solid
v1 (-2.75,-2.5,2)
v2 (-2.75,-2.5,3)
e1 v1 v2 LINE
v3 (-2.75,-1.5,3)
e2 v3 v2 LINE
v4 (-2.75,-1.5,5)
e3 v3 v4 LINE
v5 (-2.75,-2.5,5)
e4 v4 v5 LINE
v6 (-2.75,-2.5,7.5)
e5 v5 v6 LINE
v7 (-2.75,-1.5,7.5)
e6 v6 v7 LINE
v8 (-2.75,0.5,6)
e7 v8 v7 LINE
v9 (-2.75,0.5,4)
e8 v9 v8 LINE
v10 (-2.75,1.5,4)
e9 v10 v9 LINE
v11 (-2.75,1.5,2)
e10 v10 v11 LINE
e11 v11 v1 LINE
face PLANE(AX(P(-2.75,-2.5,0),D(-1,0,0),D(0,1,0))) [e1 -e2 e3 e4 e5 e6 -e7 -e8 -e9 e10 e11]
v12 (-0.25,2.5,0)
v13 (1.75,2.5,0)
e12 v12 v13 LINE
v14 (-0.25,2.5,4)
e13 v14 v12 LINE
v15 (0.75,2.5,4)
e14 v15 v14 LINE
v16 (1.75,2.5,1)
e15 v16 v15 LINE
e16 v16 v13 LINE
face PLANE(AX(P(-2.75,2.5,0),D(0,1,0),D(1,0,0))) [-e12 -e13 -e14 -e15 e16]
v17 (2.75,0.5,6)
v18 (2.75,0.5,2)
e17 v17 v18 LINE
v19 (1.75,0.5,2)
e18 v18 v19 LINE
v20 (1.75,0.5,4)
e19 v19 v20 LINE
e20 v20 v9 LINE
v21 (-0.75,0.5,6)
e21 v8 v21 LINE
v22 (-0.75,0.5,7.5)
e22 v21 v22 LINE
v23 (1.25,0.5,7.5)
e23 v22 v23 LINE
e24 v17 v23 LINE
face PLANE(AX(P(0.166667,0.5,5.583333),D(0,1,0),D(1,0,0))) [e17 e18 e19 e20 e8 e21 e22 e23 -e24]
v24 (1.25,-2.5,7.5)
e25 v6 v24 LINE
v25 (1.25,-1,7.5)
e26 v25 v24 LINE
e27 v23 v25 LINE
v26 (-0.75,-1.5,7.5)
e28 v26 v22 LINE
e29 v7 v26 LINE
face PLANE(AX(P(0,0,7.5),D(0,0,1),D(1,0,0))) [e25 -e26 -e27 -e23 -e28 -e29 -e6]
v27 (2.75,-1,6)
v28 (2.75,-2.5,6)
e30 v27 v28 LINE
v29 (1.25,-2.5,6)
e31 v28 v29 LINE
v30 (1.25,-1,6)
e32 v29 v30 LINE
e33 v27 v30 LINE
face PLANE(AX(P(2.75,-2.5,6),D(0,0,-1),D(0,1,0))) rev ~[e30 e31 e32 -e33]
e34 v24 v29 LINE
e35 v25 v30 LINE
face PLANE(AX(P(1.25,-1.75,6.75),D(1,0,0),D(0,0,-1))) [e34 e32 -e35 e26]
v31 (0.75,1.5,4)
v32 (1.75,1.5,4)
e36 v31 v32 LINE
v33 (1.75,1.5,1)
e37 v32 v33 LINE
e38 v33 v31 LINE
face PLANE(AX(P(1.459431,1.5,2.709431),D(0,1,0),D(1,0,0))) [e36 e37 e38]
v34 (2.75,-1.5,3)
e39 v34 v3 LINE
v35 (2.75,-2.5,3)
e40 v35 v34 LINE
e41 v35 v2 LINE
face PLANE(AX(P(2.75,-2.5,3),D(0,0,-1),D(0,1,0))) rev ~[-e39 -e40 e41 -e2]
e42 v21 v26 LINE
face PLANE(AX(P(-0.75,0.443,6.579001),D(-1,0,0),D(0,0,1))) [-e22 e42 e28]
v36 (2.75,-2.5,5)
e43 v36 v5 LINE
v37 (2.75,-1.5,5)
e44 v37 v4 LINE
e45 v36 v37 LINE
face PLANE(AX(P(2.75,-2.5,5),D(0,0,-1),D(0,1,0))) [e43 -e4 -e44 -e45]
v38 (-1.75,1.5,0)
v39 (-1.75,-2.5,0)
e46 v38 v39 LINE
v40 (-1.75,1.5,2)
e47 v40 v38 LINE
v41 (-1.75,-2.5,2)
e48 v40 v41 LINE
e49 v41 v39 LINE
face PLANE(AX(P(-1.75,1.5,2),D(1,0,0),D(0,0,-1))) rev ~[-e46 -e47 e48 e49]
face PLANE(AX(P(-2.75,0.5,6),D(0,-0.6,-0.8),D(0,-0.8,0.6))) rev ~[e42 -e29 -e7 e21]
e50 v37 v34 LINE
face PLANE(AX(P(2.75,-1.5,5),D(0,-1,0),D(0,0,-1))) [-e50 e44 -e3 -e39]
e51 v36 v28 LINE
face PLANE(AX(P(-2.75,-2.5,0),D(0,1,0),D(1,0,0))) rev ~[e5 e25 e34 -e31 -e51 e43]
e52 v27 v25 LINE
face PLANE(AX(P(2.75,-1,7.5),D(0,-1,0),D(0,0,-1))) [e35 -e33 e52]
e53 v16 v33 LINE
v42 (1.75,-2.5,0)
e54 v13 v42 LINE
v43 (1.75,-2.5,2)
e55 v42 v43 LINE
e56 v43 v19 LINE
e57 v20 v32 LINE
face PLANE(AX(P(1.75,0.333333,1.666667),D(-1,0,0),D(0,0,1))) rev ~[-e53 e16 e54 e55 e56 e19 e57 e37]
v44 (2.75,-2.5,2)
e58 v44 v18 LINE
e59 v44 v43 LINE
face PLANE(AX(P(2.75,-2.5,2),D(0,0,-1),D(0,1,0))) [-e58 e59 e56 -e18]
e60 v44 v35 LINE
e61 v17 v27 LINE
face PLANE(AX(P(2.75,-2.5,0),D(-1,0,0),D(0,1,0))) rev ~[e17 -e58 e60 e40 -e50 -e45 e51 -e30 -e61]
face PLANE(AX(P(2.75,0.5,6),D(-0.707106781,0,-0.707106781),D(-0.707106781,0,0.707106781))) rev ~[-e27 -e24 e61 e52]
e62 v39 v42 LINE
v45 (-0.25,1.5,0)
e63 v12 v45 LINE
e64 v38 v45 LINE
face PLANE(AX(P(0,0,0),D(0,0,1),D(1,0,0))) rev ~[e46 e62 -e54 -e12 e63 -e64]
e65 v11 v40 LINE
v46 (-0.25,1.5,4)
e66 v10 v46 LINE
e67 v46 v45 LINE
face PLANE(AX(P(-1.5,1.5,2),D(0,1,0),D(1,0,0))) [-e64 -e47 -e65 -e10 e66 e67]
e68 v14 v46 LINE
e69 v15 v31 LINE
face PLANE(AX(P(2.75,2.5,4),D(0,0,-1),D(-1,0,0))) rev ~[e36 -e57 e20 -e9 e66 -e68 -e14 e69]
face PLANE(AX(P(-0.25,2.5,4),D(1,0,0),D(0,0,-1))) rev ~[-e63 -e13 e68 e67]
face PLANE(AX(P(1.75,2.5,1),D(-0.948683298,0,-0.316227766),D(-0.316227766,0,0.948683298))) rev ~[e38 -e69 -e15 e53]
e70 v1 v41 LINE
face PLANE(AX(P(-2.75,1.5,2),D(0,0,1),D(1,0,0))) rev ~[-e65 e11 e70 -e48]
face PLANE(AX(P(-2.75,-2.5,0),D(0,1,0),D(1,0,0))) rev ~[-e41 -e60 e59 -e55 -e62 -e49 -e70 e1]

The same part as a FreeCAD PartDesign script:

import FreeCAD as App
import Part
import Sketcher

doc = App.newDocument("Part")
body = doc.addObject("PartDesign::Body", "Body")

# Sketch on XY plane
sketch1 = body.newObject("Sketcher::SketchObject", "Sketch")
sketch1.AttachmentSupport = (doc.getObject("XY_Plane"), [""])
sketch1.MapMode = "FlatFace"
sketch1.addGeometry([
    Part.LineSegment(App.Vector(-2.75, 2.5, 0), App.Vector(-2.75, -2.5, 0)),
    Part.LineSegment(App.Vector(-2.75, -2.5, 0), App.Vector(2.75, -2.5, 0)),
    Part.LineSegment(App.Vector(2.75, -2.5, 0), App.Vector(2.75, 2.5, 0)),
    Part.LineSegment(App.Vector(2.75, 2.5, 0), App.Vector(-2.75, 2.5, 0)),
], False)
sketch1.addConstraint([
    Sketcher.Constraint("Coincident", 0, 2, 1, 1),
    Sketcher.Constraint("Coincident", 1, 2, 2, 1),
    Sketcher.Constraint("Coincident", 2, 2, 3, 1),
    Sketcher.Constraint("Coincident", 3, 2, 0, 1),
    Sketcher.Constraint("Vertical", 0),
    Sketcher.Constraint("Horizontal", 1),
    Sketcher.Constraint("Vertical", 2),
    Sketcher.Constraint("Horizontal", 3),
    Sketcher.Constraint("Symmetric", 0, 2, 2, 2, -1, 1),
    Sketcher.Constraint("DistanceY", 0, 2, 0, 1, 5.0),
    Sketcher.Constraint("DistanceX", 1, 1, 1, 2, 5.5),
])
pad1 = body.newObject("PartDesign::Pad", "Pad")
pad1.Profile = sketch1
pad1.Length = 7.5

# Sketch on YZ plane
sketch2 = body.newObject("Sketcher::SketchObject", "Sketch001")
sketch2.AttachmentSupport = (doc.getObject("YZ_Plane"), [""])
sketch2.MapMode = "FlatFace"
sketch2.AttachmentOffset = App.Placement(App.Vector(0, 0, -2.75), App.Rotation())
sketch2.addGeometry([
    Part.LineSegment(App.Vector(2.5, 6, 0), App.Vector(-1.5, 7.5, 0)),
    Part.LineSegment(App.Vector(-1.5, 7.5, 0), App.Vector(2.5, 7.5, 0)),
    Part.LineSegment(App.Vector(2.5, 7.5, 0), App.Vector(2.5, 6, 0)),
], False)
sketch2.addConstraint([
    Sketcher.Constraint("Coincident", 0, 2, 1, 1),
    Sketcher.Constraint("Coincident", 1, 2, 2, 1),
    Sketcher.Constraint("Coincident", 2, 2, 0, 1),
    Sketcher.Constraint("Horizontal", 1),
    Sketcher.Constraint("Vertical", 2),
    Sketcher.Constraint("DistanceX", 1, 1, 1, 2, 4.0),
    Sketcher.Constraint("DistanceY", 2, 2, 2, 1, 1.5),
    Sketcher.Constraint("DistanceY", -1, 1, 2, 2, 6.0),
    Sketcher.Constraint("DistanceX", 0, 2, -1, 1, 1.5),
])
pocket1 = body.newObject("PartDesign::Pocket", "Pocket")
pocket1.Profile = sketch2
pocket1.Length = 2
pocket1.Reversed = True

# Sketch on YZ plane
sketch3 = body.newObject("Sketcher::SketchObject", "Sketch002")
sketch3.AttachmentSupport = (doc.getObject("YZ_Plane"), [""])
sketch3.MapMode = "FlatFace"
sketch3.AttachmentOffset = App.Placement(App.Vector(0, 0, 2.75), App.Rotation())
sketch3.addGeometry([
    Part.LineSegment(App.Vector(-2.5, 2, 0), App.Vector(-2.5, 0, 0)),  # 0
    Part.LineSegment(App.Vector(-2.5, 0, 0), App.Vector(2.5, 0, 0)),  # 1
    Part.LineSegment(App.Vector(2.5, 0, 0), App.Vector(2.5, 4, 0)),  # 2
    Part.LineSegment(App.Vector(2.5, 4, 0), App.Vector(0.5, 4, 0)),  # 3
    Part.LineSegment(App.Vector(0.5, 4, 0), App.Vector(0.5, 2, 0)),  # 4
    Part.LineSegment(App.Vector(0.5, 2, 0), App.Vector(-2.5, 2, 0)),  # 5
], False)
sketch3.addConstraint([
    Sketcher.Constraint("Coincident", 0, 2, 1, 1),
    Sketcher.Constraint("Coincident", 1, 2, 2, 1),
    Sketcher.Constraint("Coincident", 2, 2, 3, 1),
    Sketcher.Constraint("Coincident", 3, 2, 4, 1),
    Sketcher.Constraint("Coincident", 4, 2, 5, 1),
    Sketcher.Constraint("Coincident", 5, 2, 0, 1),
    Sketcher.Constraint("Vertical", 0),
    Sketcher.Constraint("Horizontal", 1),
    Sketcher.Constraint("Vertical", 2),
    Sketcher.Constraint("Horizontal", 3),
    Sketcher.Constraint("Vertical", 4),
    Sketcher.Constraint("Horizontal", 5),
    Sketcher.Constraint("Symmetric", 0, 2, 1, 2, -1, 1),
    Sketcher.Constraint("Equal", 3, 0),
    Sketcher.Constraint("Equal", 0, 4),
    Sketcher.Constraint("DistanceX", 1, 1, 1, 2, 5.0),
    Sketcher.Constraint("DistanceX", 3, 2, 3, 1, 2.0),
])
pocket2 = body.newObject("PartDesign::Pocket", "Pocket001")
pocket2.Profile = sketch3
pocket2.Length = 1

# Sketch on XZ plane
sketch4 = body.newObject("Sketcher::SketchObject", "Sketch003")
sketch4.AttachmentSupport = (doc.getObject("XZ_Plane"), [""])
sketch4.MapMode = "FlatFace"
sketch4.AttachmentOffset = App.Placement(App.Vector(0, 0, -2.5), App.Rotation())
sketch4.addGeometry([
    Part.LineSegment(App.Vector(2.75, 7.5, 0), App.Vector(2.75, 4, 0)),  # 0
    Part.LineSegment(App.Vector(2.75, 4, 0), App.Vector(-2.75, 4, 0)),  # 1
    Part.LineSegment(App.Vector(-2.75, 4, 0), App.Vector(-2.75, 6, 0)),  # 2
    Part.LineSegment(App.Vector(-2.75, 6, 0), App.Vector(-0.75, 6, 0)),  # 3
    Part.LineSegment(App.Vector(-0.75, 6, 0), App.Vector(-0.75, 7.5, 0)),  # 4
    Part.LineSegment(App.Vector(-0.75, 7.5, 0), App.Vector(2.75, 7.5, 0)),  # 5
], False)
sketch4.addConstraint([
    Sketcher.Constraint("Coincident", 0, 2, 1, 1),
    Sketcher.Constraint("Coincident", 1, 2, 2, 1),
    Sketcher.Constraint("Coincident", 2, 2, 3, 1),
    Sketcher.Constraint("Coincident", 3, 2, 4, 1),
    Sketcher.Constraint("Coincident", 4, 2, 5, 1),
    Sketcher.Constraint("Coincident", 5, 2, 0, 1),
    Sketcher.Constraint("Vertical", 0),
    Sketcher.Constraint("Horizontal", 1),
    Sketcher.Constraint("Vertical", 2),
    Sketcher.Constraint("Horizontal", 3),
    Sketcher.Constraint("Vertical", 4),
    Sketcher.Constraint("Horizontal", 5),
    Sketcher.Constraint("Equal", 5, 0),
    Sketcher.Constraint("Equal", 3, 2),
    Sketcher.Constraint("DistanceX", 3, 1, 3, 2, 2.0),
    Sketcher.Constraint("DistanceX", 1, 2, 1, 1, 5.5),
    Sketcher.Constraint("DistanceY", -1, 1, 0, 2, 4.0),
    Sketcher.Constraint("DistanceX", -1, 1, 0, 2, 2.75),
])
pocket3 = body.newObject("PartDesign::Pocket", "Pocket002")
pocket3.Profile = sketch4
pocket3.Length = 2
pocket3.Reversed = True

# Sketch on YZ plane
sketch5 = body.newObject("Sketcher::SketchObject", "Sketch004")
sketch5.AttachmentSupport = (doc.getObject("YZ_Plane"), [""])
sketch5.MapMode = "FlatFace"
sketch5.AttachmentOffset = App.Placement(App.Vector(0, 0, -2.75), App.Rotation())
sketch5.addGeometry([
    Part.LineSegment(App.Vector(2.5, 6, 0), App.Vector(0.5, 6, 0)),
    Part.LineSegment(App.Vector(0.5, 6, 0), App.Vector(-1.5, 7.5, 0)),
    Part.LineSegment(App.Vector(-1.5, 7.5, 0), App.Vector(2.5, 6, 0)),
], False)
sketch5.addConstraint([
    Sketcher.Constraint("Coincident", 0, 2, 1, 1),
    Sketcher.Constraint("Coincident", 1, 2, 2, 1),
    Sketcher.Constraint("Coincident", 2, 2, 0, 1),
    Sketcher.Constraint("Horizontal", 0),
    Sketcher.Constraint("DistanceX", 0, 2, 0, 1, 2.0),
    Sketcher.Constraint("DistanceY", -1, 1, 0, 2, 6.0),
    Sketcher.Constraint("DistanceX", 1, 2, 0, 2, 2.0),
    Sketcher.Constraint("Distance", 1, 2.5),
    Sketcher.Constraint("DistanceX", -1, 1, 0, 2, 0.5),
])
pocket4 = body.newObject("PartDesign::Pocket", "Pocket003")
pocket4.Profile = sketch5
pocket4.Length = 2
pocket4.Reversed = True

# Sketch on XZ plane
sketch6 = body.newObject("Sketcher::SketchObject", "Sketch005")
sketch6.AttachmentSupport = (doc.getObject("XZ_Plane"), [""])
sketch6.MapMode = "FlatFace"
sketch6.AttachmentOffset = App.Placement(App.Vector(0, 0, -2.5), App.Rotation())
sketch6.addGeometry([
    Part.LineSegment(App.Vector(1.75, 4, 0), App.Vector(1.75, 1, 0)),  # 0
    Part.LineSegment(App.Vector(1.75, 1, 0), App.Vector(0.75, 4, 0)),  # 1
    Part.LineSegment(App.Vector(0.75, 4, 0), App.Vector(1.75, 4, 0)),  # 2
    Part.LineSegment(App.Vector(-2.75, 0, 0), App.Vector(-2.75, 4, 0)),  # 3
    Part.LineSegment(App.Vector(-2.75, 4, 0), App.Vector(-0.25, 4, 0)),  # 4
    Part.LineSegment(App.Vector(-0.25, 4, 0), App.Vector(-0.25, 0, 0)),  # 5
    Part.LineSegment(App.Vector(-0.25, 0, 0), App.Vector(-2.75, 0, 0)),  # 6
], False)
sketch6.addConstraint([
    Sketcher.Constraint("Coincident", 0, 2, 1, 1),
    Sketcher.Constraint("Coincident", 1, 2, 2, 1),
    Sketcher.Constraint("Coincident", 2, 2, 0, 1),
    Sketcher.Constraint("Coincident", 3, 2, 4, 1),
    Sketcher.Constraint("Coincident", 4, 2, 5, 1),
    Sketcher.Constraint("Coincident", 5, 2, 6, 1),
    Sketcher.Constraint("Coincident", 6, 2, 3, 1),
    Sketcher.Constraint("Vertical", 0),
    Sketcher.Constraint("Horizontal", 2),
    Sketcher.Constraint("Vertical", 3),
    Sketcher.Constraint("Horizontal", 4),
    Sketcher.Constraint("Vertical", 5),
    Sketcher.Constraint("Horizontal", 6),
    Sketcher.Constraint("PointOnObject", 5, 2, -1),
    Sketcher.Constraint("Horizontal", 2, 2, 3, 2),
    Sketcher.Constraint("DistanceX", 2, 1, 2, 2, 1.0),
    Sketcher.Constraint("DistanceY", 0, 2, 0, 1, 3.0),
    Sketcher.Constraint("DistanceY", 3, 1, 3, 2, 4.0),
    Sketcher.Constraint("DistanceX", 4, 1, 4, 2, 2.5),
    Sketcher.Constraint("DistanceX", 4, 2, 1, 2, 1.0),
    Sketcher.Constraint("DistanceX", -1, 1, 0, 2, 1.75),
])
pocket5 = body.newObject("PartDesign::Pocket", "Pocket004")
pocket5.Profile = sketch6
pocket5.Length = 1
pocket5.Reversed = True

# Sketch on XZ plane
sketch7 = body.newObject("Sketcher::SketchObject", "Sketch006")
sketch7.AttachmentSupport = (doc.getObject("XZ_Plane"), [""])
sketch7.MapMode = "FlatFace"
sketch7.AttachmentOffset = App.Placement(App.Vector(0, 0, -1.5), App.Rotation())
sketch7.addGeometry([
    Part.LineSegment(App.Vector(-2.75, 0, 0), App.Vector(-2.75, 2, 0)),
    Part.LineSegment(App.Vector(-2.75, 2, 0), App.Vector(-1.75, 2, 0)),
    Part.LineSegment(App.Vector(-1.75, 2, 0), App.Vector(-1.75, 0, 0)),
    Part.LineSegment(App.Vector(-1.75, 0, 0), App.Vector(-2.75, 0, 0)),
], False)
sketch7.addConstraint([
    Sketcher.Constraint("Coincident", 0, 2, 1, 1),
    Sketcher.Constraint("Coincident", 1, 2, 2, 1),
    Sketcher.Constraint("Coincident", 2, 2, 3, 1),
    Sketcher.Constraint("Coincident", 3, 2, 0, 1),
    Sketcher.Constraint("Vertical", 0),
    Sketcher.Constraint("Horizontal", 1),
    Sketcher.Constraint("Vertical", 2),
    Sketcher.Constraint("Horizontal", 3),
    Sketcher.Constraint("PointOnObject", 2, 2, -1),
    Sketcher.Constraint("DistanceX", 1, 1, 1, 2, 1.0),
    Sketcher.Constraint("DistanceY", 0, 1, 0, 2, 2.0),
    Sketcher.Constraint("DistanceX", 0, 2, -1, 1, 2.75),
])
pocket6 = body.newObject("PartDesign::Pocket", "Pocket005")
pocket6.Profile = sketch7
pocket6.Type = "ThroughAll"
pocket6.Reversed = True

# Sketch on YZ plane
sketch8 = body.newObject("Sketcher::SketchObject", "Sketch007")
sketch8.AttachmentSupport = (doc.getObject("YZ_Plane"), [""])
sketch8.MapMode = "FlatFace"
sketch8.AttachmentOffset = App.Placement(App.Vector(0, 0, 2.75), App.Rotation())
sketch8.addGeometry([
    Part.LineSegment(App.Vector(-1.5, 5, 0), App.Vector(-2.5, 5, 0)),
    Part.LineSegment(App.Vector(-2.5, 5, 0), App.Vector(-2.5, 3, 0)),
    Part.LineSegment(App.Vector(-2.5, 3, 0), App.Vector(-1.5, 3, 0)),
    Part.LineSegment(App.Vector(-1.5, 3, 0), App.Vector(-1.5, 5, 0)),
], False)
sketch8.addConstraint([
    Sketcher.Constraint("Coincident", 0, 2, 1, 1),
    Sketcher.Constraint("Coincident", 1, 2, 2, 1),
    Sketcher.Constraint("Coincident", 2, 2, 3, 1),
    Sketcher.Constraint("Coincident", 3, 2, 0, 1),
    Sketcher.Constraint("Horizontal", 0),
    Sketcher.Constraint("Vertical", 1),
    Sketcher.Constraint("Horizontal", 2),
    Sketcher.Constraint("Vertical", 3),
    Sketcher.Constraint("DistanceX", 0, 2, 0, 1, 1.0),
    Sketcher.Constraint("DistanceY", 1, 2, 1, 1, 2.0),
    Sketcher.Constraint("DistanceY", -1, 1, 0, 2, 5.0),
    Sketcher.Constraint("DistanceX", 0, 2, -1, 1, 2.5),
])
pocket7 = body.newObject("PartDesign::Pocket", "Pocket006")
pocket7.Profile = sketch8
pocket7.Type = "ThroughAll"

# Sketch on XZ plane
sketch9 = body.newObject("Sketcher::SketchObject", "Sketch008")
sketch9.AttachmentSupport = (doc.getObject("XZ_Plane"), [""])
sketch9.MapMode = "FlatFace"
sketch9.AttachmentOffset = App.Placement(App.Vector(0, 0, -0.5), App.Rotation())
sketch9.addGeometry([
    Part.LineSegment(App.Vector(2.75, 6, 0), App.Vector(1.25, 7.5, 0)),
    Part.LineSegment(App.Vector(1.25, 7.5, 0), App.Vector(2.75, 7.5, 0)),
    Part.LineSegment(App.Vector(2.75, 7.5, 0), App.Vector(2.75, 6, 0)),
], False)
sketch9.addConstraint([
    Sketcher.Constraint("Coincident", 0, 2, 1, 1),
    Sketcher.Constraint("Coincident", 1, 2, 2, 1),
    Sketcher.Constraint("Coincident", 2, 2, 0, 1),
    Sketcher.Constraint("Horizontal", 1),
    Sketcher.Constraint("Vertical", 2),
    Sketcher.Constraint("Equal", 1, 2),
    Sketcher.Constraint("DistanceX", 1, 1, 1, 2, 1.5),
    Sketcher.Constraint("DistanceY", -1, 1, 2, 2, 6.0),
    Sketcher.Constraint("DistanceX", -1, 1, 0, 2, 1.25),
])
pocket8 = body.newObject("PartDesign::Pocket", "Pocket007")
pocket8.Profile = sketch9
pocket8.Type = "ThroughAll"
pocket8.Reversed = True

# Sketch on YZ plane
sketch10 = body.newObject("Sketcher::SketchObject", "Sketch009")
sketch10.AttachmentSupport = (doc.getObject("YZ_Plane"), [""])
sketch10.MapMode = "FlatFace"
sketch10.AttachmentOffset = App.Placement(App.Vector(0, 0, 2.75), App.Rotation())
sketch10.addGeometry([
    Part.LineSegment(App.Vector(-1, 7.5, 0), App.Vector(-2.5, 7.5, 0)),
    Part.LineSegment(App.Vector(-2.5, 7.5, 0), App.Vector(-2.5, 6, 0)),
    Part.LineSegment(App.Vector(-2.5, 6, 0), App.Vector(-1, 6, 0)),
    Part.LineSegment(App.Vector(-1, 6, 0), App.Vector(-1, 7.5, 0)),
], False)
sketch10.addConstraint([
    Sketcher.Constraint("Coincident", 0, 2, 1, 1),
    Sketcher.Constraint("Coincident", 1, 2, 2, 1),
    Sketcher.Constraint("Coincident", 2, 2, 3, 1),
    Sketcher.Constraint("Coincident", 3, 2, 0, 1),
    Sketcher.Constraint("Horizontal", 0),
    Sketcher.Constraint("Vertical", 1),
    Sketcher.Constraint("Horizontal", 2),
    Sketcher.Constraint("Vertical", 3),
    Sketcher.Constraint("Equal", 2, 1),
    Sketcher.Constraint("DistanceX", 0, 2, 0, 1, 1.5),
    Sketcher.Constraint("DistanceY", -1, 1, 1, 2, 6.0),
    Sketcher.Constraint("DistanceX", 2, 2, -1, 1, 1.0),
])
pocket9 = body.newObject("PartDesign::Pocket", "Pocket008")
pocket9.Profile = sketch10
pocket9.Length = 1.5

doc.recompute()
